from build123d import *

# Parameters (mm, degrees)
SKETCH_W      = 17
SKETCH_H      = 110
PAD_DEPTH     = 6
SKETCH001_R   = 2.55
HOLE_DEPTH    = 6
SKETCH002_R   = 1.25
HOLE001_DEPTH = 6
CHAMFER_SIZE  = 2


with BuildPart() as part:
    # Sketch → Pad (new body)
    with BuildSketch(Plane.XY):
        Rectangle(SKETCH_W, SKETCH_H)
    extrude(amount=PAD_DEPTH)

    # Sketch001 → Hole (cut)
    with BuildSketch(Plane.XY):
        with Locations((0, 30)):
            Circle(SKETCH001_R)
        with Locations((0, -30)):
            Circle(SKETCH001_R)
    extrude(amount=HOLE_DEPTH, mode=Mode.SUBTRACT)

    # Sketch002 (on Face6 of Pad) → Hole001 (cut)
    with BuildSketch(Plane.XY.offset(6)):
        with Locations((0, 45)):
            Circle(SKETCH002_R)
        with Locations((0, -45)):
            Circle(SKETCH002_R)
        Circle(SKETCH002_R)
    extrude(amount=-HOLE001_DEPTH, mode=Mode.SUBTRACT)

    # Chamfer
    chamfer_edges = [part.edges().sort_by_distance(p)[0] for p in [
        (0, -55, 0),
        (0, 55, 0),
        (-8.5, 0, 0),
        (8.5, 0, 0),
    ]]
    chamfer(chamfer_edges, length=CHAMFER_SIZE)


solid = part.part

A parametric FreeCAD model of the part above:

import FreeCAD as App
import Part
import Sketcher
from FreeCAD import Vector


def edges_at(feature, points):
    """Names of the edges that pass closest to the given points."""
    edges = feature.Shape.Edges
    near = lambda p: min(range(len(edges)), key=lambda i: edges[i].distToShape(Part.Vertex(*p))[0])
    return sorted({f"Edge{near(p) + 1}" for p in points})

doc = App.newDocument("Part")
params = doc.addObject("Spreadsheet::Sheet", "Params")
for row, (alias, value) in enumerate([
    ("sketch1_width", "17 mm"),
    ("sketch1_height", "110 mm"),
    ("pad1_length", "6 mm"),
    ("sketch2_diameter", "5.1 mm"),
    ("pocket1_length", "6 mm"),
    ("sketch3_diameter", "2.5 mm"),
    ("pocket2_length", "6 mm"),
    ("chamfer_size", "2 mm"),
], start=1):
    params.set(f"A{row}", alias)
    params.set(f"B{row}", "=" + value)
    params.setAlias(f"B{row}", alias)

body = doc.addObject("PartDesign::Body", "Body")

sketch1 = doc.addObject("Sketcher::SketchObject", "Sketch")
body.addObject(sketch1)
sketch1.AttachmentSupport = (doc.XY_Plane, [""])
sketch1.MapMode = "FlatFace"
sketch1.addGeometry(Part.LineSegment(Vector(-8.5, 55, 0), Vector(-8.5, -55, 0)), False)
sketch1.addGeometry(Part.LineSegment(Vector(-8.5, -55, 0), Vector(8.5, -55, 0)), False)
sketch1.addGeometry(Part.LineSegment(Vector(8.5, -55, 0), Vector(8.5, 55, 0)), False)
sketch1.addGeometry(Part.LineSegment(Vector(8.5, 55, 0), Vector(-8.5, 55, 0)), False)
sketch1.addConstraint(Sketcher.Constraint("Coincident", 0, 2, 1, 1))
sketch1.addConstraint(Sketcher.Constraint("Coincident", 1, 2, 2, 1))
sketch1.addConstraint(Sketcher.Constraint("Coincident", 2, 2, 3, 1))
sketch1.addConstraint(Sketcher.Constraint("Coincident", 3, 2, 0, 1))
sketch1.addConstraint(Sketcher.Constraint("Vertical", 0))
sketch1.addConstraint(Sketcher.Constraint("Horizontal", 1))
sketch1.addConstraint(Sketcher.Constraint("Vertical", 2))
sketch1.addConstraint(Sketcher.Constraint("Horizontal", 3))
sketch1.addConstraint(Sketcher.Constraint("Symmetric", 0, 2, 2, 2, -1, 1))
sketch1.addConstraint(Sketcher.Constraint("DistanceX", 1, 1, 1, 2, 17.0))
sketch1.addConstraint(Sketcher.Constraint("DistanceY", 0, 2, 0, 1, 110.0))
sketch1.setExpression("Constraints[9]", "Params.sketch1_width")
sketch1.setExpression("Constraints[10]", "Params.sketch1_height")
pad1 = doc.addObject("PartDesign::Pad", "Pad")
body.addObject(pad1)
pad1.Profile = sketch1
pad1.setExpression("Length", "Params.pad1_length")

sketch2 = doc.addObject("Sketcher::SketchObject", "Sketch001")
body.addObject(sketch2)
sketch2.AttachmentSupport = (doc.XY_Plane, [""])
sketch2.MapMode = "FlatFace"
sketch2.addGeometry(Part.Circle(Vector(0, 30, 0), Vector(0, 0, 1), 2.55), False)
sketch2.addGeometry(Part.Circle(Vector(0, -30, 0), Vector(0, 0, 1), 2.55), False)
sketch2.addConstraint(Sketcher.Constraint("Equal", 0, 1))
sketch2.addConstraint(Sketcher.Constraint("Symmetric", 0, 3, 1, 3, -1, 1))
sketch2.addConstraint(Sketcher.Constraint("PointOnObject", 0, 3, -2))
sketch2.addConstraint(Sketcher.Constraint("Diameter", 0, 5.1))
sketch2.addConstraint(Sketcher.Constraint("DistanceY", -1, 1, 0, 3, 30.0))
sketch2.setExpression("Constraints[3]", "Params.sketch2_diameter")
pocket1 = doc.addObject("PartDesign::Pocket", "Pocket")
body.addObject(pocket1)
pocket1.Profile = sketch2
pocket1.setExpression("Length", "Params.pocket1_length")
pocket1.Reversed = True

sketch3 = doc.addObject("Sketcher::SketchObject", "Sketch002")
body.addObject(sketch3)
sketch3.AttachmentSupport = (doc.XY_Plane, [""])
sketch3.MapMode = "FlatFace"
sketch3.AttachmentOffset = App.Placement(Vector(0, 0, 6), App.Rotation())
sketch3.addGeometry(Part.Circle(Vector(0, 45, 0), Vector(0, 0, 1), 1.25), False)
sketch3.addGeometry(Part.Circle(Vector(0, -45, 0), Vector(0, 0, 1), 1.25), False)
sketch3.addGeometry(Part.Circle(Vector(0, 0, 0), Vector(0, 0, 1), 1.25), False)
sketch3.addConstraint(Sketcher.Constraint("Coincident", 2, 3, -1, 1))
sketch3.addConstraint(Sketcher.Constraint("Equal", 0, 1))
sketch3.addConstraint(Sketcher.Constraint("Equal", 1, 2))
sketch3.addConstraint(Sketcher.Constraint("Symmetric", 0, 3, 1, 3, -1, 1))
sketch3.addConstraint(Sketcher.Constraint("PointOnObject", 0, 3, -2))
sketch3.addConstraint(Sketcher.Constraint("Diameter", 0, 2.5))
sketch3.addConstraint(Sketcher.Constraint("DistanceY", -1, 1, 0, 3, 45.0))
sketch3.setExpression("Constraints[5]", "Params.sketch3_diameter")
pocket2 = doc.addObject("PartDesign::Pocket", "Pocket001")
body.addObject(pocket2)
pocket2.Profile = sketch3
pocket2.setExpression("Length", "Params.pocket2_length")
doc.recompute()

chamfer = doc.addObject("PartDesign::Chamfer", "Chamfer")
body.addObject(chamfer)
chamfer.Base = (pocket2, edges_at(pocket2, [
    (0, -55, 0),
    (0, 55, 0),
    (-8.5, 0, 0),
    (8.5, 0, 0),
]))
chamfer.setExpression("Size", "Params.chamfer_size")

doc.recompute()
